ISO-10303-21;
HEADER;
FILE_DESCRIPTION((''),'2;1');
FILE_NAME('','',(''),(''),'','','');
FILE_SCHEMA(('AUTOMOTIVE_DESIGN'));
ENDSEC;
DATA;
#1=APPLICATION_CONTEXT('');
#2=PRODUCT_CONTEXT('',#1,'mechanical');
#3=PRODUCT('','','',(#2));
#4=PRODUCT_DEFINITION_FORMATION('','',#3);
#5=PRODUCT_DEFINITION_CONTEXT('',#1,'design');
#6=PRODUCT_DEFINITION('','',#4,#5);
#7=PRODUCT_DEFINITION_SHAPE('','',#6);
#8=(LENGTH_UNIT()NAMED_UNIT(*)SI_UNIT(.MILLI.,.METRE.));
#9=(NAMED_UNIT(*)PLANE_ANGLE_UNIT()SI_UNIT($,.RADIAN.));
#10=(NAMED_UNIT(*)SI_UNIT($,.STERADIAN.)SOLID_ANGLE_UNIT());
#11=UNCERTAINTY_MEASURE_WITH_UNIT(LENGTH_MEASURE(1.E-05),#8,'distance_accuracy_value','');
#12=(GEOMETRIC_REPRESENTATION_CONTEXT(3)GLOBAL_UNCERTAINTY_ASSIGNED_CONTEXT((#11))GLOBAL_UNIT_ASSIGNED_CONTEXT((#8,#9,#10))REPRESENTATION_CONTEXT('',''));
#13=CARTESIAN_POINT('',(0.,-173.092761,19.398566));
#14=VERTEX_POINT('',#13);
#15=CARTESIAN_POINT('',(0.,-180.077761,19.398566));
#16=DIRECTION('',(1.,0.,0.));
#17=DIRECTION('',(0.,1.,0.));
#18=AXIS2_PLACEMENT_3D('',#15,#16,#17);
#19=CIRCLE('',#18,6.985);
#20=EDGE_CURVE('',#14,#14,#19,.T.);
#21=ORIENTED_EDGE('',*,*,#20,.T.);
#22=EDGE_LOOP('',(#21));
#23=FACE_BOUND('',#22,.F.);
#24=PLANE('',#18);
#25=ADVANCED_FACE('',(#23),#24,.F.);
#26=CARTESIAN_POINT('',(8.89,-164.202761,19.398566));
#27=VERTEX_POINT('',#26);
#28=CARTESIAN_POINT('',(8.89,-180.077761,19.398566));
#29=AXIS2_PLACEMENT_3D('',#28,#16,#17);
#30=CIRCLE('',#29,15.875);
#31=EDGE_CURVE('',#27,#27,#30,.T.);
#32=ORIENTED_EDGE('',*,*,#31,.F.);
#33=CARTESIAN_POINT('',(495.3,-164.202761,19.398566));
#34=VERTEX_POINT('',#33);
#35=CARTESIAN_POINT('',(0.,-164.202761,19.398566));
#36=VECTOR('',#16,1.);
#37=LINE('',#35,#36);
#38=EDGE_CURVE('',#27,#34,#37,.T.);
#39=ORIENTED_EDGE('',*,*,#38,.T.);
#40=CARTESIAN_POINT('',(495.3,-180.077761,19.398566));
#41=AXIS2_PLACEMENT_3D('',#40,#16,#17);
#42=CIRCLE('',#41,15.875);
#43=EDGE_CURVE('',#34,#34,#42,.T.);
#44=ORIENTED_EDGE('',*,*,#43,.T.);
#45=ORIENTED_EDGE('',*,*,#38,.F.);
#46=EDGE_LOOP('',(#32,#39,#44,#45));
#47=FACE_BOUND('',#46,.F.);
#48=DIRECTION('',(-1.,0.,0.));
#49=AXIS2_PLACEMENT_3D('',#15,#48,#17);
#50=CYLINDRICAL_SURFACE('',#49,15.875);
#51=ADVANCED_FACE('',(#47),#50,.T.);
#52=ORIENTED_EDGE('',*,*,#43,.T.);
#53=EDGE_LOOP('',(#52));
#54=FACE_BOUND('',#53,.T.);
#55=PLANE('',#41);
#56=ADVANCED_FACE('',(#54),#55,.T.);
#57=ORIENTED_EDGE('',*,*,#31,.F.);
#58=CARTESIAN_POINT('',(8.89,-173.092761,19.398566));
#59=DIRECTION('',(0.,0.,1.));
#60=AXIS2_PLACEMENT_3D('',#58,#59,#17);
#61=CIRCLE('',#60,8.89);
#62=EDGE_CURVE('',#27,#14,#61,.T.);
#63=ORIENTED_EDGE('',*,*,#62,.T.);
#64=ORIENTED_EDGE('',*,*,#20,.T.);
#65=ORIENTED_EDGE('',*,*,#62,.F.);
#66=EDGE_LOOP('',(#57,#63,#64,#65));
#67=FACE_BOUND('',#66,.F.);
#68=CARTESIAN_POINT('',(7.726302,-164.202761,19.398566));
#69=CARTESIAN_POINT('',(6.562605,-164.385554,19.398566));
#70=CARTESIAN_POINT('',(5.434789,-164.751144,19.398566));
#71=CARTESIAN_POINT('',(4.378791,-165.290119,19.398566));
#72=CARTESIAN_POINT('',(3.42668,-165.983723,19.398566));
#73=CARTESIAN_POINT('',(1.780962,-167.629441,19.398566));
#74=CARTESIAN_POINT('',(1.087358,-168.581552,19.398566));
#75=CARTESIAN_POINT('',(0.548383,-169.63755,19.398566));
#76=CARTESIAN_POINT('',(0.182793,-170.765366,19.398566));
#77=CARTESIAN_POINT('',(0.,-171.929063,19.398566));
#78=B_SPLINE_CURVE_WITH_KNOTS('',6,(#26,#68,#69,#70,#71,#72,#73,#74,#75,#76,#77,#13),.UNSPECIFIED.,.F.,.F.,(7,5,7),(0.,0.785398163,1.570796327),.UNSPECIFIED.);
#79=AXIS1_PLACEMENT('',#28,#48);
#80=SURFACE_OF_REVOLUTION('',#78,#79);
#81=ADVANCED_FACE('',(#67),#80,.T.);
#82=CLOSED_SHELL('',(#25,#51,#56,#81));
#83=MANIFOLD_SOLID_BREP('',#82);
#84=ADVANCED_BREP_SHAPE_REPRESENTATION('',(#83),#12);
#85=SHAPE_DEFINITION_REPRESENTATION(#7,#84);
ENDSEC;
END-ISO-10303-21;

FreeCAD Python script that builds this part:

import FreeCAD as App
import Part
import Sketcher

V = App.Vector
Q = App.Units.Quantity


def edges_at(feature, points):
    """Names of the edges that pass closest to the given points."""
    edges = feature.Shape.Edges
    near = lambda p: min(range(len(edges)), key=lambda i: edges[i].distToShape(Part.Vertex(*p))[0])
    return sorted({f"Edge{near(p) + 1}" for p in points})

doc = App.newDocument("Part")
body = doc.addObject("PartDesign::Body", "Body")

sketch1 = body.newObject("Sketcher::SketchObject", "Sketch")
sketch1.AttachmentSupport = (doc.getObject("YZ_Plane"), [""])
sketch1.MapMode = "FlatFace"
sketch1.addGeometry(Part.Circle(V(-180, 19, 0), V(0, 0, 1), 16), False)
sketch1.addConstraint([
    Sketcher.Constraint("Diameter", 0, Q("1.25 in")),
    Sketcher.Constraint("DistanceX", 0, 3, -1, 1, Q("180.077761 mm")),
    Sketcher.Constraint("DistanceY", -1, 1, 0, 3, Q("19.398566 mm")),
])
pad1 = body.newObject("PartDesign::Pad", "Pad")
pad1.Profile = sketch1
pad1.Length = Q("19.5 in")
doc.recompute()

fillet = body.newObject("PartDesign::Fillet", "Fillet")
fillet.Base = (pad1, edges_at(pad1, [(0, -195.953, 19.399)]))
fillet.Radius = Q("0.35 in")

doc.recompute()
